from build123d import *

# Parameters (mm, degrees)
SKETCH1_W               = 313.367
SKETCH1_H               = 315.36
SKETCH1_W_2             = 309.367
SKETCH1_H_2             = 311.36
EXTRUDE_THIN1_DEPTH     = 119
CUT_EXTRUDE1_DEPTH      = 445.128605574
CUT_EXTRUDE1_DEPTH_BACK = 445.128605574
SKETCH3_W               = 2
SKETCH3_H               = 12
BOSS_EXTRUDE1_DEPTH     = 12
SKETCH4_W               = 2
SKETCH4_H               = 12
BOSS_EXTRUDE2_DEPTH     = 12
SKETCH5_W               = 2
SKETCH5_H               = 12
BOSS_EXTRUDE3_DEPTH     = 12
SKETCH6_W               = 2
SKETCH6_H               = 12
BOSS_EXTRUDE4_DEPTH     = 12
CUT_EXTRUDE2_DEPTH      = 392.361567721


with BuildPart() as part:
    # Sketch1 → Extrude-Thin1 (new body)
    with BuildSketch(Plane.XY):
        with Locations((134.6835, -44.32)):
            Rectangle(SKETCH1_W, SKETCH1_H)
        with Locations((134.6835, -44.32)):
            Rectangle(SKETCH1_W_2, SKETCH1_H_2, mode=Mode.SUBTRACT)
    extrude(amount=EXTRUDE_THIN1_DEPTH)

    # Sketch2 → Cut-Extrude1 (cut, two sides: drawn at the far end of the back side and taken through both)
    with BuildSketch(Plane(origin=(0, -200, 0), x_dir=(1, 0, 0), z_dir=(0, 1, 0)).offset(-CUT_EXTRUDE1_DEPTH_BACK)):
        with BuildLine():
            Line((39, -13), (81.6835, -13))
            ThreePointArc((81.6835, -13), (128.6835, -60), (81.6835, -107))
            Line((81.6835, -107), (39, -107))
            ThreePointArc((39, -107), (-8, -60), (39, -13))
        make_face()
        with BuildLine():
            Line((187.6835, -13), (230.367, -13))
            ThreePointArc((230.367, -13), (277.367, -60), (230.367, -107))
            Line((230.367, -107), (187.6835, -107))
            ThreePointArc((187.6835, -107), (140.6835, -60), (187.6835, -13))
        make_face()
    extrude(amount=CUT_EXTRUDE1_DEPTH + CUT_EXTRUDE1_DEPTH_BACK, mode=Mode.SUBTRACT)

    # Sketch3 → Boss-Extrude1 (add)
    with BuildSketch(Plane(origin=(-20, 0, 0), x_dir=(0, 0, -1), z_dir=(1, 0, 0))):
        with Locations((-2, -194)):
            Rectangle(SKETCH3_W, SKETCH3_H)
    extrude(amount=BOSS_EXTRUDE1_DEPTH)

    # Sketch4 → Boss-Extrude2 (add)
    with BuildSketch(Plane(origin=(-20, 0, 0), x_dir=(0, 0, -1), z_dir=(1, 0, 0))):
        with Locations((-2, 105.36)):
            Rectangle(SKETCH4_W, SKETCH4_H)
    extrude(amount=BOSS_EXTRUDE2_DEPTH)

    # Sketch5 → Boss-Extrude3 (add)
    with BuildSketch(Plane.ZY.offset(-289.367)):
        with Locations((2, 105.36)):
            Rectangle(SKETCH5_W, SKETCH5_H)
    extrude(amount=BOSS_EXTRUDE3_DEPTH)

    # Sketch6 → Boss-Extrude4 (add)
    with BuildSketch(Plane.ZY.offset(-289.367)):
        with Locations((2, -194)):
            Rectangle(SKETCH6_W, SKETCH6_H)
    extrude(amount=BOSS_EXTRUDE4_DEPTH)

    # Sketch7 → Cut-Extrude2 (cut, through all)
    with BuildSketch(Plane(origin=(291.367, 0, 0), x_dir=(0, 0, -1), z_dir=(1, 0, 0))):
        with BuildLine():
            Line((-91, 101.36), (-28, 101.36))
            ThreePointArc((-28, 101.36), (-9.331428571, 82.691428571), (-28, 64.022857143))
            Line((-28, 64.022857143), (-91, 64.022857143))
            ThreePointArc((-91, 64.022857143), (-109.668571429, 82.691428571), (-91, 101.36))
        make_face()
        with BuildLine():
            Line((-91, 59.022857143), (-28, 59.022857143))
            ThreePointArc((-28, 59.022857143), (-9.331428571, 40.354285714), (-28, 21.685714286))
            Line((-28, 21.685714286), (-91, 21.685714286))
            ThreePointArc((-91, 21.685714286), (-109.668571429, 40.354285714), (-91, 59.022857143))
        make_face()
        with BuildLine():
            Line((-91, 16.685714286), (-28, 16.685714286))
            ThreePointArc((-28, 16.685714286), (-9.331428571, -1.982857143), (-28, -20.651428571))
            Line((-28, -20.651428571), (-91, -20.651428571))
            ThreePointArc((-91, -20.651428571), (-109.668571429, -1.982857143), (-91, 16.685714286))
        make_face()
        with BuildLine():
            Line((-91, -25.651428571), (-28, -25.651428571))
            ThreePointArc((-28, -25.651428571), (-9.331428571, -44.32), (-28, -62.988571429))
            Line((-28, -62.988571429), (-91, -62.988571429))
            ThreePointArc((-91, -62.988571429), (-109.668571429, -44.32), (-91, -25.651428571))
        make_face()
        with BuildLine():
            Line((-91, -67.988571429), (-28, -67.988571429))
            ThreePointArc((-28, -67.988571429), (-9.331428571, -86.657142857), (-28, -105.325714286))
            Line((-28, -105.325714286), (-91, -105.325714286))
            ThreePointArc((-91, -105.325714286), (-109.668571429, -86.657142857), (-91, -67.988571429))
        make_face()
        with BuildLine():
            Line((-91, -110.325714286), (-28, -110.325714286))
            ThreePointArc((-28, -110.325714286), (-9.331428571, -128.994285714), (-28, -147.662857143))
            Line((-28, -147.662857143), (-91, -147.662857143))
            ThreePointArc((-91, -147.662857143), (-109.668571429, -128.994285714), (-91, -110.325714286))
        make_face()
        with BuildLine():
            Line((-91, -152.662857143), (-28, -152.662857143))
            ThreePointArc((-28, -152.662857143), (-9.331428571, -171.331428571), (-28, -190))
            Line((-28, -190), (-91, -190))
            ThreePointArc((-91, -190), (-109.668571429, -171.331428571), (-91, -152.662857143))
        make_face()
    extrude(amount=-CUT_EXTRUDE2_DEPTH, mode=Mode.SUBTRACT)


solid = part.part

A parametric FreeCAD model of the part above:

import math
import FreeCAD as App
import Part
import Sketcher
from FreeCAD import Vector
Q = App.Units.Quantity


def add_polygon(sketch, points):
    """Adds a closed chain of lines whose ends are joined by coincident constraints."""
    first, n = sketch.GeometryCount, len(points)
    for a, b in zip(points, points[1:] + points[:1]):
        sketch.addGeometry(Part.LineSegment(App.Vector(*a, 0), App.Vector(*b, 0)), False)
    for i in range(n):
        sketch.addConstraint(Sketcher.Constraint("Coincident", first + i, 2, first + (i + 1) % n, 1))

doc = App.newDocument("Part")
body = doc.addObject("PartDesign::Body", "Body")

sketch1 = body.newObject("Sketcher::SketchObject", "Sketch")
sketch1.AttachmentSupport = (doc.getObject("XY_Plane"), [""])
sketch1.MapMode = "FlatFace"
add_polygon(sketch1, [(-22, 113.36), (-22, -202), (291.367, -202), (291.367, 113.36)])
add_polygon(sketch1, [(289.367, -200), (-20, -200), (-20, 111.36), (289.367, 111.36)])
sketch1.addConstraint([
    Sketcher.Constraint("Vertical", 0),
    Sketcher.Constraint("Horizontal", 1),
    Sketcher.Constraint("Vertical", 2),
    Sketcher.Constraint("Horizontal", 3),
    Sketcher.Constraint("Horizontal", 4),
    Sketcher.Constraint("Vertical", 5),
    Sketcher.Constraint("Horizontal", 6),
    Sketcher.Constraint("Vertical", 7),
    Sketcher.Constraint("DistanceX", 0, 2, -1, 1, Q("22 mm")),
    Sketcher.Constraint("DistanceY", 0, 2, -1, 1, Q("202 mm")),
    Sketcher.Constraint("DistanceX", 4, 2, -1, 1, Q("20 mm")),
    Sketcher.Constraint("DistanceY", 4, 2, -1, 1, Q("200 mm")),
    Sketcher.Constraint("DistanceY", 5, 2, 3, 2, Q("2 mm")),
    Sketcher.Constraint("DistanceX", 6, 2, 2, 2, Q("2 mm")),
    Sketcher.Constraint("DistanceY", 0, 2, 0, 1, Q("315.36 mm")),
    Sketcher.Constraint("DistanceX", 1, 1, 1, 2, Q("313.367 mm")),
])
pad1 = body.newObject("PartDesign::Pad", "Pad")
pad1.Profile = sketch1
pad1.Length = 119

sketch2 = body.newObject("Sketcher::SketchObject", "Sketch001")
sketch2.AttachmentSupport = (doc.getObject("XZ_Plane"), [""])
sketch2.MapMode = "FlatFace"
sketch2.AttachmentOffset = App.Placement(Vector(0, 0, 200), App.Rotation())
sketch2.addGeometry([
    Part.LineSegment(Vector(81.6835, 13, 0), Vector(39, 13, 0)),
    Part.ArcOfCircle(Part.Circle(Vector(39, 60, 0), Vector(0, 0, 1), 47), math.radians(90), math.radians(270)),
    Part.LineSegment(Vector(39, 107, 0), Vector(81.6835, 107, 0)),
    Part.ArcOfCircle(Part.Circle(Vector(81.6835, 60, 0), Vector(0, 0, 1), 47), math.radians(-90), math.radians(90)),
    Part.LineSegment(Vector(230.367, 13, 0), Vector(187.6835, 13, 0)),
    Part.ArcOfCircle(Part.Circle(Vector(187.6835, 60, 0), Vector(0, 0, 1), 47), math.radians(90), math.radians(270)),
    Part.LineSegment(Vector(187.6835, 107, 0), Vector(230.367, 107, 0)),
    Part.ArcOfCircle(Part.Circle(Vector(230.367, 60, 0), Vector(0, 0, 1), 47), math.radians(-90), math.radians(90)),
], False)
sketch2.addConstraint([
    Sketcher.Constraint("Tangent", 0, 2, 1, 2),
    Sketcher.Constraint("Tangent", 1, 1, 2, 1),
    Sketcher.Constraint("Tangent", 2, 2, 3, 2),
    Sketcher.Constraint("Tangent", 3, 1, 0, 1),
    Sketcher.Constraint("Tangent", 4, 2, 5, 2),
    Sketcher.Constraint("Tangent", 5, 1, 6, 1),
    Sketcher.Constraint("Tangent", 6, 2, 7, 2),
    Sketcher.Constraint("Tangent", 7, 1, 4, 1),
    Sketcher.Constraint("Horizontal", 0),
    Sketcher.Constraint("Horizontal", 2),
    Sketcher.Constraint("Horizontal", 4),
    Sketcher.Constraint("Horizontal", 6),
    Sketcher.Constraint("Equal", 3, 5),
    Sketcher.Constraint("Horizontal", 3, 3, 5, 3),
    Sketcher.Constraint("Equal", 2, 4),
    Sketcher.Constraint("Radius", 1, Q("47 mm")),
    Sketcher.Constraint("DistanceX", -1, 1, 1, 3, Q("39 mm")),
    Sketcher.Constraint("DistanceY", -1, 1, 1, 3, Q("60 mm")),
    Sketcher.Constraint("DistanceX", 3, 3, 5, 3, Q("106 mm")),
    Sketcher.Constraint("DistanceX", 0, 2, 0, 1, Q("42.6835 mm")),
])
pocket1 = body.newObject("PartDesign::Pocket", "Pocket")
pocket1.Profile = sketch2
pocket1.Type = "ThroughAll"
pocket1.Midplane = True

sketch3 = body.newObject("Sketcher::SketchObject", "Sketch002")
sketch3.AttachmentSupport = (doc.getObject("YZ_Plane"), [""])
sketch3.MapMode = "FlatFace"
sketch3.AttachmentOffset = App.Placement(Vector(0, 0, -20), App.Rotation())
add_polygon(sketch3, [(-188, 3), (-200, 3), (-200, 1), (-188, 1)])
sketch3.addConstraint([
    Sketcher.Constraint("Horizontal", 0),
    Sketcher.Constraint("Vertical", 1),
    Sketcher.Constraint("Horizontal", 2),
    Sketcher.Constraint("Vertical", 3),
    Sketcher.Constraint("DistanceX", 0, 2, 0, 1, Q("12 mm")),
    Sketcher.Constraint("DistanceY", 1, 2, 1, 1, Q("2 mm")),
    Sketcher.Constraint("DistanceX", 0, 2, -1, 1, Q("200 mm")),
    Sketcher.Constraint("DistanceY", -1, 1, 0, 2, Q("3 mm")),
])
pad2 = body.newObject("PartDesign::Pad", "Pad001")
pad2.Profile = sketch3
pad2.Length = 12

sketch4 = body.newObject("Sketcher::SketchObject", "Sketch003")
sketch4.AttachmentSupport = (doc.getObject("YZ_Plane"), [""])
sketch4.MapMode = "FlatFace"
sketch4.AttachmentOffset = App.Placement(Vector(0, 0, -20), App.Rotation())
add_polygon(sketch4, [(111.36, 3), (99.36, 3), (99.36, 1), (111.36, 1)])
sketch4.addConstraint([
    Sketcher.Constraint("Horizontal", 0),
    Sketcher.Constraint("Vertical", 1),
    Sketcher.Constraint("Horizontal", 2),
    Sketcher.Constraint("Vertical", 3),
    Sketcher.Constraint("DistanceX", 0, 2, 0, 1, Q("12 mm")),
    Sketcher.Constraint("DistanceY", 1, 2, 1, 1, Q("2 mm")),
    Sketcher.Constraint("DistanceY", -1, 1, 0, 2, Q("3 mm")),
    Sketcher.Constraint("DistanceX", -1, 1, 0, 2, Q("99.36 mm")),
])
pad3 = body.newObject("PartDesign::Pad", "Pad002")
pad3.Profile = sketch4
pad3.Length = 12

sketch5 = body.newObject("Sketcher::SketchObject", "Sketch004")
sketch5.AttachmentSupport = (doc.getObject("YZ_Plane"), [""])
sketch5.MapMode = "FlatFace"
sketch5.AttachmentOffset = App.Placement(Vector(0, 0, 289.367), App.Rotation())
add_polygon(sketch5, [(111.36, 1), (99.36, 1), (99.36, 3), (111.36, 3)])
sketch5.addConstraint([
    Sketcher.Constraint("Horizontal", 0),
    Sketcher.Constraint("Vertical", 1),
    Sketcher.Constraint("Horizontal", 2),
    Sketcher.Constraint("Vertical", 3),
    Sketcher.Constraint("DistanceX", 0, 2, 0, 1, Q("12 mm")),
    Sketcher.Constraint("DistanceY", 1, 1, 1, 2, Q("2 mm")),
    Sketcher.Constraint("DistanceY", -1, 1, 0, 2, Q("1 mm")),
    Sketcher.Constraint("DistanceX", -1, 1, 0, 2, Q("99.36 mm")),
])
pad4 = body.newObject("PartDesign::Pad", "Pad003")
pad4.Profile = sketch5
pad4.Length = 12
pad4.Reversed = True

sketch6 = body.newObject("Sketcher::SketchObject", "Sketch005")
sketch6.AttachmentSupport = (doc.getObject("YZ_Plane"), [""])
sketch6.MapMode = "FlatFace"
sketch6.AttachmentOffset = App.Placement(Vector(0, 0, 289.367), App.Rotation())
add_polygon(sketch6, [(-188, 1), (-200, 1), (-200, 3), (-188, 3)])
sketch6.addConstraint([
    Sketcher.Constraint("Horizontal", 0),
    Sketcher.Constraint("Vertical", 1),
    Sketcher.Constraint("Horizontal", 2),
    Sketcher.Constraint("Vertical", 3),
    Sketcher.Constraint("DistanceX", 0, 2, 0, 1, Q("12 mm")),
    Sketcher.Constraint("DistanceY", 1, 1, 1, 2, Q("2 mm")),
    Sketcher.Constraint("DistanceX", 0, 2, -1, 1, Q("200 mm")),
    Sketcher.Constraint("DistanceY", -1, 1, 0, 2, Q("1 mm")),
])
pad5 = body.newObject("PartDesign::Pad", "Pad004")
pad5.Profile = sketch6
pad5.Length = 12
pad5.Reversed = True

sketch7 = body.newObject("Sketcher::SketchObject", "Sketch006")
sketch7.AttachmentSupport = (doc.getObject("YZ_Plane"), [""])
sketch7.MapMode = "FlatFace"
sketch7.AttachmentOffset = App.Placement(Vector(0, 0, 291.367), App.Rotation())
sketch7.addGeometry([
    Part.LineSegment(Vector(101.36, 28, 0), Vector(101.36, 91, 0)),
    Part.ArcOfCircle(Part.Circle(Vector(82.691429, 91, 0), Vector(0, 0, 1), 18.668571), math.radians(0), math.radians(180)),
    Part.LineSegment(Vector(64.022857, 91, 0), Vector(64.022857, 28, 0)),
    Part.ArcOfCircle(Part.Circle(Vector(82.691429, 28, 0), Vector(0, 0, 1), 18.668571), math.radians(180), math.radians(360)),
    Part.LineSegment(Vector(59.022857, 28, 0), Vector(59.022857, 91, 0)),
    Part.ArcOfCircle(Part.Circle(Vector(40.354286, 91, 0), Vector(0, 0, 1), 18.668571), math.radians(0), math.radians(180)),
    Part.LineSegment(Vector(21.685714, 91, 0), Vector(21.685714, 28, 0)),
    Part.ArcOfCircle(Part.Circle(Vector(40.354286, 28, 0), Vector(0, 0, 1), 18.668571), math.radians(180), math.radians(360)),
    Part.LineSegment(Vector(16.685714, 28, 0), Vector(16.685714, 91, 0)),
    Part.ArcOfCircle(Part.Circle(Vector(-1.982857, 91, 0), Vector(0, 0, 1), 18.668571), math.radians(0), math.radians(180)),
    Part.LineSegment(Vector(-20.651429, 91, 0), Vector(-20.651429, 28, 0)),
    Part.ArcOfCircle(Part.Circle(Vector(-1.982857, 28, 0), Vector(0, 0, 1), 18.668571), math.radians(180), math.radians(360)),
    Part.LineSegment(Vector(-25.651429, 28, 0), Vector(-25.651429, 91, 0)),
    Part.ArcOfCircle(Part.Circle(Vector(-44.32, 91, 0), Vector(0, 0, 1), 18.668571), math.radians(0), math.radians(180)),
    Part.LineSegment(Vector(-62.988571, 91, 0), Vector(-62.988571, 28, 0)),
    Part.ArcOfCircle(Part.Circle(Vector(-44.32, 28, 0), Vector(0, 0, 1), 18.668571), math.radians(180), math.radians(360)),
    Part.LineSegment(Vector(-67.988571, 28, 0), Vector(-67.988571, 91, 0)),
    Part.ArcOfCircle(Part.Circle(Vector(-86.657143, 91, 0), Vector(0, 0, 1), 18.668571), math.radians(0), math.radians(180)),
    Part.LineSegment(Vector(-105.325714, 91, 0), Vector(-105.325714, 28, 0)),
    Part.ArcOfCircle(Part.Circle(Vector(-86.657143, 28, 0), Vector(0, 0, 1), 18.668571), math.radians(180), math.radians(360)),
    Part.LineSegment(Vector(-110.325714, 28, 0), Vector(-110.325714, 91, 0)),
    Part.ArcOfCircle(Part.Circle(Vector(-128.994286, 91, 0), Vector(0, 0, 1), 18.668571), math.radians(0), math.radians(180)),
    Part.LineSegment(Vector(-147.662857, 91, 0), Vector(-147.662857, 28, 0)),
    Part.ArcOfCircle(Part.Circle(Vector(-128.994286, 28, 0), Vector(0, 0, 1), 18.668571), math.radians(180), math.radians(360)),
    Part.LineSegment(Vector(-152.662857, 28, 0), Vector(-152.662857, 91, 0)),
    Part.ArcOfCircle(Part.Circle(Vector(-171.331429, 91, 0), Vector(0, 0, 1), 18.668571), math.radians(0), math.radians(180)),
    Part.LineSegment(Vector(-190, 91, 0), Vector(-190, 28, 0)),
    Part.ArcOfCircle(Part.Circle(Vector(-171.331429, 28, 0), Vector(0, 0, 1), 18.668571), math.radians(180), math.radians(360)),
], False)
sketch7.addConstraint([
    Sketcher.Constraint("Tangent", 0, 2, 1, 1),
    Sketcher.Constraint("Tangent", 1, 2, 2, 1),
    Sketcher.Constraint("Tangent", 2, 2, 3, 1),
    Sketcher.Constraint("Tangent", 3, 2, 0, 1),
    Sketcher.Constraint("Tangent", 4, 2, 5, 1),
    Sketcher.Constraint("Tangent", 5, 2, 6, 1),
    Sketcher.Constraint("Tangent", 6, 2, 7, 1),
    Sketcher.Constraint("Tangent", 7, 2, 4, 1),
    Sketcher.Constraint("Tangent", 8, 2, 9, 1),
    Sketcher.Constraint("Tangent", 9, 2, 10, 1),
    Sketcher.Constraint("Tangent", 10, 2, 11, 1),
    Sketcher.Constraint("Tangent", 11, 2, 8, 1),
    Sketcher.Constraint("Tangent", 12, 2, 13, 1),
    Sketcher.Constraint("Tangent", 13, 2, 14, 1),
    Sketcher.Constraint("Tangent", 14, 2, 15, 1),
    Sketcher.Constraint("Tangent", 15, 2, 12, 1),
    Sketcher.Constraint("Tangent", 16, 2, 17, 1),
    Sketcher.Constraint("Tangent", 17, 2, 18, 1),
    Sketcher.Constraint("Tangent", 18, 2, 19, 1),
    Sketcher.Constraint("Tangent", 19, 2, 16, 1),
    Sketcher.Constraint("Tangent", 20, 2, 21, 1),
    Sketcher.Constraint("Tangent", 21, 2, 22, 1),
    Sketcher.Constraint("Tangent", 22, 2, 23, 1),
    Sketcher.Constraint("Tangent", 23, 2, 20, 1),
    Sketcher.Constraint("Tangent", 24, 2, 25, 1),
    Sketcher.Constraint("Tangent", 25, 2, 26, 1),
    Sketcher.Constraint("Tangent", 26, 2, 27, 1),
    Sketcher.Constraint("Tangent", 27, 2, 24, 1),
    Sketcher.Constraint("Vertical", 0),
    Sketcher.Constraint("Vertical", 2),
    Sketcher.Constraint("Vertical", 4),
    Sketcher.Constraint("Vertical", 6),
    Sketcher.Constraint("Vertical", 8),
    Sketcher.Constraint("Vertical", 10),
    Sketcher.Constraint("Vertical", 12),
    Sketcher.Constraint("Vertical", 14),
    Sketcher.Constraint("Vertical", 16),
    Sketcher.Constraint("Vertical", 18),
    Sketcher.Constraint("Vertical", 20),
    Sketcher.Constraint("Vertical", 22),
    Sketcher.Constraint("Vertical", 24),
    Sketcher.Constraint("Vertical", 26),
    Sketcher.Constraint("Equal", 3, 5),
    Sketcher.Constraint("Equal", 7, 9),
    Sketcher.Constraint("Equal", 11, 13),
    Sketcher.Constraint("Equal", 15, 17),
    Sketcher.Constraint("Equal", 19, 21),
    Sketcher.Constraint("Equal", 23, 25),
    Sketcher.Constraint("Horizontal", 1, 3, 5, 3),
    Sketcher.Constraint("Horizontal", 3, 3, 7, 3),
    Sketcher.Constraint("Horizontal", 5, 3, 9, 3),
    Sketcher.Constraint("Horizontal", 7, 3, 11, 3),
    Sketcher.Constraint("Horizontal", 9, 3, 13, 3),
    Sketcher.Constraint("Horizontal", 11, 3, 15, 3),
    Sketcher.Constraint("Horizontal", 13, 3, 17, 3),
    Sketcher.Constraint("Horizontal", 15, 3, 19, 3),
    Sketcher.Constraint("Horizontal", 17, 3, 21, 3),
    Sketcher.Constraint("Horizontal", 19, 3, 23, 3),
    Sketcher.Constraint("Horizontal", 21, 3, 25, 3),
    Sketcher.Constraint("Horizontal", 23, 3, 27, 3),
    Sketcher.Constraint("DistanceY", 0, 1, 0, 2, Q("63 mm")),
    Sketcher.Constraint("DistanceY", -1, 1, 1, 3, Q("91 mm")),
    Sketcher.Constraint("DistanceX", 25, 2, -1, 1, Q("190 mm")),
    Sketcher.Constraint("DistanceX", 4, 2, 1, 2, Q("5 mm")),
    Sketcher.Constraint("DistanceX", 8, 2, 5, 2, Q("5 mm")),
    Sketcher.Constraint("DistanceX", 12, 2, 9, 2, Q("5 mm")),
    Sketcher.Constraint("DistanceX", 16, 2, 13, 2, Q("5 mm")),
    Sketcher.Constraint("DistanceX", 20, 2, 17, 2, Q("5 mm")),
    Sketcher.Constraint("DistanceX", 24, 2, 21, 2, Q("5 mm")),
    Sketcher.Constraint("DistanceX", 13, 3, -1, 1, Q("44.32 mm")),
])
pocket2 = body.newObject("PartDesign::Pocket", "Pocket001")
pocket2.Profile = sketch7
pocket2.Type = "ThroughAll"

doc.recompute()
